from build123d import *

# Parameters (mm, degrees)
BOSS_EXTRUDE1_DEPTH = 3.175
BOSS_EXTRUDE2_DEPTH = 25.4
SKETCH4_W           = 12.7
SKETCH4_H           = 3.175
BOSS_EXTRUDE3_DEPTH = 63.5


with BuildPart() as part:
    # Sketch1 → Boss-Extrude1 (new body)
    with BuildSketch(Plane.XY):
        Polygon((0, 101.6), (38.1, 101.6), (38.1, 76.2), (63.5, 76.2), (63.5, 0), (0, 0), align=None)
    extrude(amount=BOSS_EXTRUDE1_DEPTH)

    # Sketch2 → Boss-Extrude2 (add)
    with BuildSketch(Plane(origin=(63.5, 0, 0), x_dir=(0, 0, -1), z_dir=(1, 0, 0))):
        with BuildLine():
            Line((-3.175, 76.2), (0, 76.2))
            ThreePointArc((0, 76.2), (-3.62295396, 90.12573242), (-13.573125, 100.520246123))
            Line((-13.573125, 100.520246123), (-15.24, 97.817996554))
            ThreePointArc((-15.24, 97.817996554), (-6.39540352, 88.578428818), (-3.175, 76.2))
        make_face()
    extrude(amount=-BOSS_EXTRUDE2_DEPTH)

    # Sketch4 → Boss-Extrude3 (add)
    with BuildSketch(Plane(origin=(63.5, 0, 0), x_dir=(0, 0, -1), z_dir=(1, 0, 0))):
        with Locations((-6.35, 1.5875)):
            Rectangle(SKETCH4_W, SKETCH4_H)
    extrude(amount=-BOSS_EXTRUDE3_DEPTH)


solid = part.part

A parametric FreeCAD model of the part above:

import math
import FreeCAD as App
import Part
import Sketcher
Q = App.Units.Quantity

doc = App.newDocument("Part")
body = doc.addObject("PartDesign::Body", "Body")

# Sketch on XY plane
sketch1 = body.newObject("Sketcher::SketchObject", "Sketch")
sketch1.AttachmentSupport = (doc.getObject("XY_Plane"), [""])
sketch1.MapMode = "FlatFace"
sketch1.addGeometry(Part.LineSegment(App.Vector(38, 102, 0), App.Vector(0, 102, 0)), False)
sketch1.addGeometry(Part.LineSegment(App.Vector(0, 102, 0), App.Vector(0, 0, 0)), False)
sketch1.addGeometry(Part.LineSegment(App.Vector(0, 0, 0), App.Vector(64, 0, 0)), False)
sketch1.addGeometry(Part.LineSegment(App.Vector(64, 0, 0), App.Vector(64, 76, 0)), False)
sketch1.addGeometry(Part.LineSegment(App.Vector(64, 76, 0), App.Vector(38, 76, 0)), False)
sketch1.addGeometry(Part.LineSegment(App.Vector(38, 76, 0), App.Vector(38, 102, 0)), False)
sketch1.addConstraint(Sketcher.Constraint("Coincident", 0, 2, 1, 1))
sketch1.addConstraint(Sketcher.Constraint("Coincident", 1, 2, 2, 1))
sketch1.addConstraint(Sketcher.Constraint("Coincident", 2, 2, 3, 1))
sketch1.addConstraint(Sketcher.Constraint("Coincident", 3, 2, 4, 1))
sketch1.addConstraint(Sketcher.Constraint("Coincident", 4, 2, 5, 1))
sketch1.addConstraint(Sketcher.Constraint("Coincident", 5, 2, 0, 1))
sketch1.addConstraint(Sketcher.Constraint("Horizontal", 0))
sketch1.addConstraint(Sketcher.Constraint("Vertical", 1))
sketch1.addConstraint(Sketcher.Constraint("Horizontal", 2))
sketch1.addConstraint(Sketcher.Constraint("Vertical", 3))
sketch1.addConstraint(Sketcher.Constraint("Horizontal", 4))
sketch1.addConstraint(Sketcher.Constraint("Vertical", 5))
sketch1.addConstraint(Sketcher.Constraint("Coincident", 1, 2, -1, 1))
sketch1.addConstraint(Sketcher.Constraint("Equal", 4, 5))
sketch1.addConstraint(Sketcher.Constraint("DistanceX", 4, 2, 4, 1, Q("1 in")))
sketch1.addConstraint(Sketcher.Constraint("DistanceY", 1, 2, 1, 1, Q("4 in")))
sketch1.addConstraint(Sketcher.Constraint("DistanceX", 0, 2, 0, 1, Q("1.5 in")))
pad1 = body.newObject("PartDesign::Pad", "Pad")
pad1.Profile = sketch1
pad1.Length = Q("0.125 in")

# Sketch on YZ plane
sketch2 = body.newObject("Sketcher::SketchObject", "Sketch001")
sketch2.AttachmentSupport = (doc.getObject("YZ_Plane"), [""])
sketch2.MapMode = "FlatFace"
sketch2.AttachmentOffset = App.Placement(App.Vector(0, 0, 2.5 * 25.4), App.Rotation())
sketch2.addGeometry(Part.LineSegment(App.Vector(76.2, 3.2, 0), App.Vector(76.2, 0, 0)), False)
sketch2.addGeometry(Part.ArcOfCircle(Part.Circle(App.Vector(76.2, 28.6, 0), App.Vector(0, 0, 1), 28.6), math.radians(-90), math.radians(-32)), False)
sketch2.addGeometry(Part.LineSegment(App.Vector(100.5, 13.6, 0), App.Vector(97.8, 15.2, 0)), False)
sketch2.addGeometry(Part.ArcOfCircle(Part.Circle(App.Vector(76.2, 28.6, 0), App.Vector(0, 0, 1), 25.4), math.radians(-90), math.radians(-32)), False)
sketch2.addConstraint(Sketcher.Constraint("Coincident", 0, 2, 1, 1))
sketch2.addConstraint(Sketcher.Constraint("Coincident", 1, 2, 2, 1))
sketch2.addConstraint(Sketcher.Constraint("Coincident", 2, 2, 3, 2))
sketch2.addConstraint(Sketcher.Constraint("Coincident", 3, 1, 0, 1))
sketch2.addConstraint(Sketcher.Constraint("Vertical", 0))
sketch2.addConstraint(Sketcher.Constraint("Coincident", 3, 3, 1, 3))
sketch2.addConstraint(Sketcher.Constraint("PointOnObject", 0, 2, -1))
sketch2.addConstraint(Sketcher.Constraint("Vertical", 3, 3, 0, 2))
sketch2.addConstraint(Sketcher.Constraint("Radius", 3, Q("1 in")))
sketch2.addConstraint(Sketcher.Constraint("DistanceX", -1, 1, 1, 3, Q("3 in")))
sketch2.addConstraint(Sketcher.Constraint("Radius", 1, Q("1.125 in")))
sketch2.addConstraint(Sketcher.Constraint("DistanceY", -1, 1, 2, 2, Q("0.6 in")))
sketch2.addConstraint(Sketcher.Constraint("DistanceX", 2, 2, 1, 2, 2.70225))
pad2 = body.newObject("PartDesign::Pad", "Pad001")
pad2.Profile = sketch2
pad2.Length = Q("1 in")
pad2.Reversed = True

# Sketch on YZ plane
sketch3 = body.newObject("Sketcher::SketchObject", "Sketch002")
sketch3.AttachmentSupport = (doc.getObject("YZ_Plane"), [""])
sketch3.MapMode = "FlatFace"
sketch3.AttachmentOffset = App.Placement(App.Vector(0, 0, 2.5 * 25.4), App.Rotation())
sketch3.addGeometry(Part.LineSegment(App.Vector(3.2, 12.7, 0), App.Vector(0, 12.7, 0)), False)
sketch3.addGeometry(Part.LineSegment(App.Vector(0, 12.7, 0), App.Vector(0, 0, 0)), False)
sketch3.addGeometry(Part.LineSegment(App.Vector(0, 0, 0), App.Vector(3.2, 0, 0)), False)
sketch3.addGeometry(Part.LineSegment(App.Vector(3.2, 0, 0), App.Vector(3.2, 12.7, 0)), False)
sketch3.addConstraint(Sketcher.Constraint("Coincident", 0, 2, 1, 1))
sketch3.addConstraint(Sketcher.Constraint("Coincident", 1, 2, 2, 1))
sketch3.addConstraint(Sketcher.Constraint("Coincident", 2, 2, 3, 1))
sketch3.addConstraint(Sketcher.Constraint("Coincident", 3, 2, 0, 1))
sketch3.addConstraint(Sketcher.Constraint("Horizontal", 0))
sketch3.addConstraint(Sketcher.Constraint("Vertical", 1))
sketch3.addConstraint(Sketcher.Constraint("Horizontal", 2))
sketch3.addConstraint(Sketcher.Constraint("Vertical", 3))
sketch3.addConstraint(Sketcher.Constraint("Coincident", 1, 2, -1, 1))
sketch3.addConstraint(Sketcher.Constraint("DistanceY", 1, 2, 1, 1, Q("0.5 in")))
sketch3.addConstraint(Sketcher.Constraint("DistanceX", 0, 2, 0, 1, Q("0.125 in")))
pad3 = body.newObject("PartDesign::Pad", "Pad002")
pad3.Profile = sketch3
pad3.Length = Q("2.5 in")
pad3.Reversed = True

doc.recompute()
